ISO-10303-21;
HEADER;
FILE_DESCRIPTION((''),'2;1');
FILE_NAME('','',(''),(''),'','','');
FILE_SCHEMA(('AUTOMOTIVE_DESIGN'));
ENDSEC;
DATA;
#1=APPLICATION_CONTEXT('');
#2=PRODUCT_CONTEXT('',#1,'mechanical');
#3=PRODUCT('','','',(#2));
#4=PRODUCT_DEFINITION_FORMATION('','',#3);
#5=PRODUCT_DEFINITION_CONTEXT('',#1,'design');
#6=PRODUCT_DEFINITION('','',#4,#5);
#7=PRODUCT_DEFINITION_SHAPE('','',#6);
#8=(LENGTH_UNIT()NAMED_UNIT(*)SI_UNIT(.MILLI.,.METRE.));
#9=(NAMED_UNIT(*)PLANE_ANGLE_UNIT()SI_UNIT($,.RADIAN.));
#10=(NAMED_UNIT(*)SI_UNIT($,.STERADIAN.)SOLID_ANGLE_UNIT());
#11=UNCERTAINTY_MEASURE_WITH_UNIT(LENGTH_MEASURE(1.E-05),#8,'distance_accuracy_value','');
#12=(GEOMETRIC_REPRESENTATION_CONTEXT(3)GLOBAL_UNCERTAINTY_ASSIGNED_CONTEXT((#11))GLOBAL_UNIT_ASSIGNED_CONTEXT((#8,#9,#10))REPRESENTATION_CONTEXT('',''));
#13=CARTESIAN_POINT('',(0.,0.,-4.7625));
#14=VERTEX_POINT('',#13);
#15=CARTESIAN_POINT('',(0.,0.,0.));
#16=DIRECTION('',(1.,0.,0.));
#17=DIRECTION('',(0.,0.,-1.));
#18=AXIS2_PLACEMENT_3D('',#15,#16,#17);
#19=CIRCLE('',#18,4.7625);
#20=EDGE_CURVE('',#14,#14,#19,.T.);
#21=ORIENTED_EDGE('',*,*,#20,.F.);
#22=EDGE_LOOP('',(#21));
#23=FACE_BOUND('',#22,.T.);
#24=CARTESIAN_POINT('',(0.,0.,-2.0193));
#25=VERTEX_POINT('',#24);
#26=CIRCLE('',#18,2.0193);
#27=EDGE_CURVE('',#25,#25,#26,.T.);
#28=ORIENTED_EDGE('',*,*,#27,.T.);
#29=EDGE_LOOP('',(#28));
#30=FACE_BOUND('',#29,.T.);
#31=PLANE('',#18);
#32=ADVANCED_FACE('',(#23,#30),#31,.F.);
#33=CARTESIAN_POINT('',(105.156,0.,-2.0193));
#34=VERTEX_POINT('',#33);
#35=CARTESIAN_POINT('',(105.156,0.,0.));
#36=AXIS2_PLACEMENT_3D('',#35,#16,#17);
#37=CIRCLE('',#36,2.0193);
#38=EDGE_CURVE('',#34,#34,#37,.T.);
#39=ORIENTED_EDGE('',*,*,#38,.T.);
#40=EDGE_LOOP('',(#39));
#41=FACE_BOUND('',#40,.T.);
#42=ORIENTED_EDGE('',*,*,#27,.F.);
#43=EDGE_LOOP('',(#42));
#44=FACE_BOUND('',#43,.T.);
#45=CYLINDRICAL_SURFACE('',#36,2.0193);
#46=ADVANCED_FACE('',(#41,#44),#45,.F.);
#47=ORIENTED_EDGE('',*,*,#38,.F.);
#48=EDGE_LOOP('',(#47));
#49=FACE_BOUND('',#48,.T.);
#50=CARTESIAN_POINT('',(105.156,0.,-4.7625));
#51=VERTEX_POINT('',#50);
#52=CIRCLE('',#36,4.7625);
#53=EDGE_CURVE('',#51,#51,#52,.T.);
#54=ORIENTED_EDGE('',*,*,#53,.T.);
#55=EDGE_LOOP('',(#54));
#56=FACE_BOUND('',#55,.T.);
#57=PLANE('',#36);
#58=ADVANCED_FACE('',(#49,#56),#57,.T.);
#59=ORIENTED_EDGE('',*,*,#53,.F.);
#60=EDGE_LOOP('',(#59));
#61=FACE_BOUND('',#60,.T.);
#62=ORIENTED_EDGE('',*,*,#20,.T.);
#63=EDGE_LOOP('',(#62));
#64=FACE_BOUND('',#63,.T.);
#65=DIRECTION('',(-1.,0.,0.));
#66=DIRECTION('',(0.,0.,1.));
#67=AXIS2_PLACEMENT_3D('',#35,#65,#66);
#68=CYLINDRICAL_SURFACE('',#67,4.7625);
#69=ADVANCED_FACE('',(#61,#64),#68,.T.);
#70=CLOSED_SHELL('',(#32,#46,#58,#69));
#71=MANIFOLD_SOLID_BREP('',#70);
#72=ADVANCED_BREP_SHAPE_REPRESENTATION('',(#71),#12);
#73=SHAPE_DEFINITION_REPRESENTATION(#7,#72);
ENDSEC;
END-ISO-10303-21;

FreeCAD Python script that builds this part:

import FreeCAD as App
import Part
import Sketcher
Q = App.Units.Quantity

doc = App.newDocument("Part")
params = doc.addObject("Spreadsheet::Sheet", "Params")
for row, (alias, value) in enumerate([
    ("sketch1_diameter", "0.375 in"),
    ("pad1_length", "4.14 in"),
    ("sketch2_diameter", "0.159 in"),
    ("hole_diameter", "0.159 in"),
], start=1):
    params.set(f"A{row}", alias)
    params.set(f"B{row}", "=" + value)
    params.setAlias(f"B{row}", alias)

body = doc.addObject("PartDesign::Body", "Body")

sketch1 = body.newObject("Sketcher::SketchObject", "Sketch")
sketch1.AttachmentSupport = (doc.getObject("YZ_Plane"), [""])
sketch1.MapMode = "FlatFace"
sketch1.addGeometry(Part.Circle(App.Vector(0, 0, 0), App.Vector(0, 0, 1), 4.8), False)
sketch1.addConstraint([
    Sketcher.Constraint("Coincident", 0, 3, -1, 1),
    Sketcher.Constraint("Diameter", 0, Q("0.375 in")),
])
sketch1.setExpression("Constraints[1]", "Params.sketch1_diameter")
pad1 = body.newObject("PartDesign::Pad", "Pad")
pad1.Profile = sketch1
pad1.setExpression("Length", "Params.pad1_length")

sketch2 = body.newObject("Sketcher::SketchObject", "Sketch001")
sketch2.AttachmentSupport = (doc.getObject("YZ_Plane"), [""])
sketch2.MapMode = "FlatFace"
sketch2.AttachmentOffset = App.Placement(App.Vector(0, 0, 4.14 * 25.4), App.Rotation())
sketch2.addGeometry(Part.Circle(App.Vector(0, 0, 0), App.Vector(0, 0, 1), 2), False)
sketch2.addConstraint([
    Sketcher.Constraint("Coincident", 0, 3, -1, 1),
    Sketcher.Constraint("Diameter", 0, Q("0.159 in")),
])
sketch2.setExpression("Constraints[1]", "Params.sketch2_diameter")
doc.recompute()
hole = body.newObject("PartDesign::Hole", "Hole")
hole.Profile = sketch2
hole.ThreadType = "None"
hole.setExpression("Diameter", "Params.hole_diameter")
hole.DepthType = "ThroughAll"

doc.recompute()
